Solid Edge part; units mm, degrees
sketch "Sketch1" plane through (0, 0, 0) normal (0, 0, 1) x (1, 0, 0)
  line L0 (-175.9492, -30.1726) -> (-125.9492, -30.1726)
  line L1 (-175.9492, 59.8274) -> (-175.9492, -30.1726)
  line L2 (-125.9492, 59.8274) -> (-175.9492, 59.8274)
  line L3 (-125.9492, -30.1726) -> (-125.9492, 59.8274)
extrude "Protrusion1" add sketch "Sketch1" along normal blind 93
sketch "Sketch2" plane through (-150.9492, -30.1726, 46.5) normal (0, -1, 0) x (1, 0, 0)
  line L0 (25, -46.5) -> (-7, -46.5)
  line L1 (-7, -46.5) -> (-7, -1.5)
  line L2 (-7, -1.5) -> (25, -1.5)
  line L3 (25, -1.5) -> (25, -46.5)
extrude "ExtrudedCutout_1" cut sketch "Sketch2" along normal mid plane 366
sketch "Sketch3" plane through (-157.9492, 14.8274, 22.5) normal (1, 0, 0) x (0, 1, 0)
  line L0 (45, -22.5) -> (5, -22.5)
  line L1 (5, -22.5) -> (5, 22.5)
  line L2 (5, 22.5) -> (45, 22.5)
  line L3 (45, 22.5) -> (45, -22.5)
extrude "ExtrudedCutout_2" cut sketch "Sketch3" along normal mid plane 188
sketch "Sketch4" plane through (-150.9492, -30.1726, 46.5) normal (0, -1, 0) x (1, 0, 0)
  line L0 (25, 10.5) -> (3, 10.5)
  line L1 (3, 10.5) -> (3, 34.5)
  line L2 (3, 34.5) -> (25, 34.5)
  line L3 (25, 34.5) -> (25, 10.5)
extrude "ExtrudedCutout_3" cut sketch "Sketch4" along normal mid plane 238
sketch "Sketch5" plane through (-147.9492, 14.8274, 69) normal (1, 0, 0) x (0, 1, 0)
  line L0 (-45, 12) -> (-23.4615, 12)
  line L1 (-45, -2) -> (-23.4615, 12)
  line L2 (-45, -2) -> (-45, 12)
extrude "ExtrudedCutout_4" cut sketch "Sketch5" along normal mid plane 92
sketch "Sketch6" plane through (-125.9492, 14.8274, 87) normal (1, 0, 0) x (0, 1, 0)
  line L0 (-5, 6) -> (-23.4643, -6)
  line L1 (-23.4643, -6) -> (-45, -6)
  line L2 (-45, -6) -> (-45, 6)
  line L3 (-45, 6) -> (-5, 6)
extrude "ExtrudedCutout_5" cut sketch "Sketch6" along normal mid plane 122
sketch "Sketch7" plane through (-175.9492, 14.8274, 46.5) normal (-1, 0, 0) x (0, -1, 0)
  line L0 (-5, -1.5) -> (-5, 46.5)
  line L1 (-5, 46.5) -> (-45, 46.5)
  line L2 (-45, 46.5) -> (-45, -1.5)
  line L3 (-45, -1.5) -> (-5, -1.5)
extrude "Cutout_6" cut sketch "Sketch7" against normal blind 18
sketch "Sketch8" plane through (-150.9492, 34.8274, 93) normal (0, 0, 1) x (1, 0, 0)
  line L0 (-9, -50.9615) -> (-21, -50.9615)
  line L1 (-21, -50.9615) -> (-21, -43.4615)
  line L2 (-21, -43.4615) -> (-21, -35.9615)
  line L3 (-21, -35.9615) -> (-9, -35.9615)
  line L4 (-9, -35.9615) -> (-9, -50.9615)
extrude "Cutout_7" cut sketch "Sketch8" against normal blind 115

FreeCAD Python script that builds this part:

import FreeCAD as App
import Part
import Sketcher
from FreeCAD import Vector
Q = App.Units.Quantity

doc = App.newDocument("Part")
body = doc.addObject("PartDesign::Body", "Body")

sketch1 = doc.addObject("Sketcher::SketchObject", "Sketch")
body.addObject(sketch1)
sketch1.AttachmentSupport = (doc.XY_Plane, [""])
sketch1.MapMode = "FlatFace"
sketch1.addGeometry([
    Part.LineSegment(Vector(-176, 60, 0), Vector(-176, -30, 0)),
    Part.LineSegment(Vector(-176, -30, 0), Vector(-126, -30, 0)),
    Part.LineSegment(Vector(-126, -30, 0), Vector(-126, 60, 0)),
    Part.LineSegment(Vector(-126, 60, 0), Vector(-176, 60, 0)),
], False)
sketch1.addConstraint([
    Sketcher.Constraint("Coincident", 0, 2, 1, 1),
    Sketcher.Constraint("Coincident", 1, 2, 2, 1),
    Sketcher.Constraint("Coincident", 2, 2, 3, 1),
    Sketcher.Constraint("Coincident", 3, 2, 0, 1),
    Sketcher.Constraint("Vertical", 0),
    Sketcher.Constraint("Horizontal", 1),
    Sketcher.Constraint("Vertical", 2),
    Sketcher.Constraint("Horizontal", 3),
    Sketcher.Constraint("DistanceX", 1, 1, 1, 2, Q("50 mm")),
    Sketcher.Constraint("DistanceY", 0, 2, 0, 1, Q("90 mm")),
    Sketcher.Constraint("DistanceX", 0, 2, -1, 1, Q("175.9492 mm")),
    Sketcher.Constraint("DistanceY", 0, 2, -1, 1, Q("30.1726 mm")),
])
pad1 = doc.addObject("PartDesign::Pad", "Pad")
body.addObject(pad1)
pad1.Profile = sketch1
pad1.Length = 93

sketch2 = doc.addObject("Sketcher::SketchObject", "Sketch001")
body.addObject(sketch2)
sketch2.AttachmentSupport = (doc.XZ_Plane, [""])
sketch2.MapMode = "FlatFace"
sketch2.AttachmentOffset = App.Placement(Vector(0, 0, 30.1726), App.Rotation())
sketch2.addGeometry([
    Part.LineSegment(Vector(-158, 0, 0), Vector(-126, 0, 0)),
    Part.LineSegment(Vector(-126, 0, 0), Vector(-126, 45, 0)),
    Part.LineSegment(Vector(-126, 45, 0), Vector(-158, 45, 0)),
    Part.LineSegment(Vector(-158, 45, 0), Vector(-158, 0, 0)),
], False)
sketch2.addConstraint([
    Sketcher.Constraint("Coincident", 0, 2, 1, 1),
    Sketcher.Constraint("Coincident", 1, 2, 2, 1),
    Sketcher.Constraint("Coincident", 2, 2, 3, 1),
    Sketcher.Constraint("Coincident", 3, 2, 0, 1),
    Sketcher.Constraint("Horizontal", 0),
    Sketcher.Constraint("Vertical", 1),
    Sketcher.Constraint("Horizontal", 2),
    Sketcher.Constraint("Vertical", 3),
    Sketcher.Constraint("PointOnObject", 0, 2, -1),
    Sketcher.Constraint("DistanceX", 0, 1, 0, 2, Q("32 mm")),
    Sketcher.Constraint("DistanceY", 1, 1, 1, 2, Q("45 mm")),
    Sketcher.Constraint("DistanceX", 0, 2, -1, 1, Q("125.9492 mm")),
])
pocket1 = doc.addObject("PartDesign::Pocket", "Pocket")
body.addObject(pocket1)
pocket1.Profile = sketch2
pocket1.Length = 366
pocket1.Midplane = True

sketch3 = doc.addObject("Sketcher::SketchObject", "Sketch002")
body.addObject(sketch3)
sketch3.AttachmentSupport = (doc.YZ_Plane, [""])
sketch3.MapMode = "FlatFace"
sketch3.AttachmentOffset = App.Placement(Vector(0, 0, -157.9492), App.Rotation())
sketch3.addGeometry([
    Part.LineSegment(Vector(20, 0, 0), Vector(60, 0, 0)),
    Part.LineSegment(Vector(60, 0, 0), Vector(60, 45, 0)),
    Part.LineSegment(Vector(60, 45, 0), Vector(20, 45, 0)),
    Part.LineSegment(Vector(20, 45, 0), Vector(20, 0, 0)),
], False)
sketch3.addConstraint([
    Sketcher.Constraint("Coincident", 0, 2, 1, 1),
    Sketcher.Constraint("Coincident", 1, 2, 2, 1),
    Sketcher.Constraint("Coincident", 2, 2, 3, 1),
    Sketcher.Constraint("Coincident", 3, 2, 0, 1),
    Sketcher.Constraint("Horizontal", 0),
    Sketcher.Constraint("Vertical", 1),
    Sketcher.Constraint("Horizontal", 2),
    Sketcher.Constraint("Vertical", 3),
    Sketcher.Constraint("PointOnObject", 0, 2, -1),
    Sketcher.Constraint("DistanceX", 0, 1, 0, 2, Q("40 mm")),
    Sketcher.Constraint("DistanceY", 1, 1, 1, 2, Q("45 mm")),
    Sketcher.Constraint("DistanceX", -1, 1, 0, 2, Q("59.8274 mm")),
])
pocket2 = doc.addObject("PartDesign::Pocket", "Pocket001")
body.addObject(pocket2)
pocket2.Profile = sketch3
pocket2.Length = 188
pocket2.Midplane = True

sketch4 = doc.addObject("Sketcher::SketchObject", "Sketch003")
body.addObject(sketch4)
sketch4.AttachmentSupport = (doc.XZ_Plane, [""])
sketch4.MapMode = "FlatFace"
sketch4.AttachmentOffset = App.Placement(Vector(0, 0, 30.1726), App.Rotation())
sketch4.addGeometry([
    Part.LineSegment(Vector(-148, 57, 0), Vector(-126, 57, 0)),
    Part.LineSegment(Vector(-126, 57, 0), Vector(-126, 81, 0)),
    Part.LineSegment(Vector(-126, 81, 0), Vector(-148, 81, 0)),
    Part.LineSegment(Vector(-148, 81, 0), Vector(-148, 57, 0)),
], False)
sketch4.addConstraint([
    Sketcher.Constraint("Coincident", 0, 2, 1, 1),
    Sketcher.Constraint("Coincident", 1, 2, 2, 1),
    Sketcher.Constraint("Coincident", 2, 2, 3, 1),
    Sketcher.Constraint("Coincident", 3, 2, 0, 1),
    Sketcher.Constraint("Horizontal", 0),
    Sketcher.Constraint("Vertical", 1),
    Sketcher.Constraint("Horizontal", 2),
    Sketcher.Constraint("Vertical", 3),
    Sketcher.Constraint("DistanceX", 0, 1, 0, 2, Q("22 mm")),
    Sketcher.Constraint("DistanceY", 1, 1, 1, 2, Q("24 mm")),
    Sketcher.Constraint("DistanceY", -1, 1, 0, 2, Q("57 mm")),
    Sketcher.Constraint("DistanceX", 0, 2, -1, 1, Q("125.9492 mm")),
])
pocket3 = doc.addObject("PartDesign::Pocket", "Pocket002")
body.addObject(pocket3)
pocket3.Profile = sketch4
pocket3.Length = 238
pocket3.Midplane = True

sketch5 = doc.addObject("Sketcher::SketchObject", "Sketch004")
body.addObject(sketch5)
sketch5.AttachmentSupport = (doc.YZ_Plane, [""])
sketch5.MapMode = "FlatFace"
sketch5.AttachmentOffset = App.Placement(Vector(0, 0, -147.9492), App.Rotation())
sketch5.addGeometry([
    Part.LineSegment(Vector(-9, 81, 0), Vector(-30, 81, 0)),
    Part.LineSegment(Vector(-30, 81, 0), Vector(-30, 67, 0)),
    Part.LineSegment(Vector(-30, 67, 0), Vector(-9, 81, 0)),
], False)
sketch5.addConstraint([
    Sketcher.Constraint("Coincident", 0, 2, 1, 1),
    Sketcher.Constraint("Coincident", 1, 2, 2, 1),
    Sketcher.Constraint("Coincident", 2, 2, 0, 1),
    Sketcher.Constraint("Horizontal", 0),
    Sketcher.Constraint("Vertical", 1),
    Sketcher.Constraint("DistanceY", 1, 2, 1, 1, Q("14 mm")),
    Sketcher.Constraint("DistanceY", -1, 1, 0, 2, Q("81 mm")),
    Sketcher.Constraint("DistanceX", 0, 2, 0, 1, Q("21.5385 mm")),
    Sketcher.Constraint("DistanceX", 2, 2, -1, 1, Q("8.634 mm")),
])
pocket4 = doc.addObject("PartDesign::Pocket", "Pocket003")
body.addObject(pocket4)
pocket4.Profile = sketch5
pocket4.Length = 92
pocket4.Midplane = True

sketch6 = doc.addObject("Sketcher::SketchObject", "Sketch005")
body.addObject(sketch6)
sketch6.AttachmentSupport = (doc.YZ_Plane, [""])
sketch6.MapMode = "FlatFace"
sketch6.AttachmentOffset = App.Placement(Vector(0, 0, -125.9492), App.Rotation())
sketch6.addGeometry([
    Part.LineSegment(Vector(-9, 81, 0), Vector(10, 93, 0)),
    Part.LineSegment(Vector(10, 93, 0), Vector(-30, 93, 0)),
    Part.LineSegment(Vector(-30, 93, 0), Vector(-30, 81, 0)),
    Part.LineSegment(Vector(-30, 81, 0), Vector(-9, 81, 0)),
], False)
sketch6.addConstraint([
    Sketcher.Constraint("Coincident", 0, 2, 1, 1),
    Sketcher.Constraint("Coincident", 1, 2, 2, 1),
    Sketcher.Constraint("Coincident", 2, 2, 3, 1),
    Sketcher.Constraint("Coincident", 3, 2, 0, 1),
    Sketcher.Constraint("Horizontal", 1),
    Sketcher.Constraint("Vertical", 2),
    Sketcher.Constraint("Horizontal", 3),
    Sketcher.Constraint("DistanceX", 1, 2, 1, 1, Q("40 mm")),
    Sketcher.Constraint("DistanceY", 2, 2, 2, 1, Q("12 mm")),
    Sketcher.Constraint("DistanceY", -1, 1, 0, 2, Q("93 mm")),
    Sketcher.Constraint("Angle", 0, Q("33.02 deg")),
    Sketcher.Constraint("DistanceX", 3, 2, -1, 1, Q("8.637 mm")),
])
pocket5 = doc.addObject("PartDesign::Pocket", "Pocket004")
body.addObject(pocket5)
pocket5.Profile = sketch6
pocket5.Length = 122
pocket5.Midplane = True

sketch7 = doc.addObject("Sketcher::SketchObject", "Sketch006")
body.addObject(sketch7)
sketch7.AttachmentSupport = (doc.YZ_Plane, [""])
sketch7.MapMode = "FlatFace"
sketch7.AttachmentOffset = App.Placement(Vector(0, 0, -175.9492), App.Rotation())
sketch7.addGeometry([
    Part.LineSegment(Vector(60, 45, 0), Vector(20, 45, 0)),
    Part.LineSegment(Vector(20, 45, 0), Vector(20, 93, 0)),
    Part.LineSegment(Vector(20, 93, 0), Vector(60, 93, 0)),
    Part.LineSegment(Vector(60, 93, 0), Vector(60, 45, 0)),
], False)
sketch7.addConstraint([
    Sketcher.Constraint("Coincident", 0, 2, 1, 1),
    Sketcher.Constraint("Coincident", 1, 2, 2, 1),
    Sketcher.Constraint("Coincident", 2, 2, 3, 1),
    Sketcher.Constraint("Coincident", 3, 2, 0, 1),
    Sketcher.Constraint("Horizontal", 0),
    Sketcher.Constraint("Vertical", 1),
    Sketcher.Constraint("Horizontal", 2),
    Sketcher.Constraint("Vertical", 3),
    Sketcher.Constraint("DistanceX", 0, 2, 0, 1, Q("40 mm")),
    Sketcher.Constraint("DistanceY", 1, 1, 1, 2, Q("48 mm")),
    Sketcher.Constraint("DistanceY", -1, 1, 0, 2, Q("45 mm")),
    Sketcher.Constraint("DistanceX", -1, 1, 0, 2, Q("19.8274 mm")),
])
pocket6 = doc.addObject("PartDesign::Pocket", "Pocket005")
body.addObject(pocket6)
pocket6.Profile = sketch7
pocket6.Length = 18
pocket6.Reversed = True

sketch8 = doc.addObject("Sketcher::SketchObject", "Sketch007")
body.addObject(sketch8)
sketch8.AttachmentSupport = (doc.XY_Plane, [""])
sketch8.MapMode = "FlatFace"
sketch8.AttachmentOffset = App.Placement(Vector(0, 0, 93), App.Rotation())
sketch8.addGeometry([
    Part.LineSegment(Vector(-172, -16, 0), Vector(-160, -16, 0)),
    Part.LineSegment(Vector(-160, -16, 0), Vector(-160, -1, 0)),
    Part.LineSegment(Vector(-160, -1, 0), Vector(-172, -1, 0)),
    Part.LineSegment(Vector(-172, -1, 0), Vector(-172, -16, 0)),
], False)
sketch8.addConstraint([
    Sketcher.Constraint("Coincident", 0, 2, 1, 1),
    Sketcher.Constraint("Coincident", 1, 2, 2, 1),
    Sketcher.Constraint("Coincident", 2, 2, 3, 1),
    Sketcher.Constraint("Coincident", 3, 2, 0, 1),
    Sketcher.Constraint("Horizontal", 0),
    Sketcher.Constraint("Vertical", 1),
    Sketcher.Constraint("Horizontal", 2),
    Sketcher.Constraint("Vertical", 3),
    Sketcher.Constraint("DistanceX", 0, 1, 0, 2, Q("12 mm")),
    Sketcher.Constraint("DistanceY", 1, 1, 1, 2, Q("15 mm")),
    Sketcher.Constraint("DistanceY", 0, 2, -1, 1, Q("16.134 mm")),
    Sketcher.Constraint("DistanceX", 0, 2, -1, 1, Q("159.9492 mm")),
])
pocket7 = doc.addObject("PartDesign::Pocket", "Pocket006")
body.addObject(pocket7)
pocket7.Profile = sketch8
pocket7.Length = 115

doc.recompute()
